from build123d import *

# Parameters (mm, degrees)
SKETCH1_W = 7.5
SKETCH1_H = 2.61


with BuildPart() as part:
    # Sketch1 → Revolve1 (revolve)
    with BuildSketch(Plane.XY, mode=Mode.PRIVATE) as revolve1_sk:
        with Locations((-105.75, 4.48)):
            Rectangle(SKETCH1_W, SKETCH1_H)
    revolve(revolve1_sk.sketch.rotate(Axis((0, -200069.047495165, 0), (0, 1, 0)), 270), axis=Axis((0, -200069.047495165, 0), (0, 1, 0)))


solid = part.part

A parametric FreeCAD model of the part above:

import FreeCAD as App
import Part
import Sketcher

V = App.Vector

doc = App.newDocument("Part")
params = doc.addObject("Spreadsheet::Sheet", "Params")
for row, (alias, value) in enumerate([
    ("sketch1_width", "7.5 mm"),
    ("sketch1_height", "2.61 mm"),
    ("revolution_angle", "360 deg"),
], start=1):
    params.set(f"A{row}", alias)
    params.set(f"B{row}", "=" + value)
    params.setAlias(f"B{row}", alias)

body = doc.addObject("PartDesign::Body", "Body")

# Sketch on XY plane
sketch1 = body.newObject("Sketcher::SketchObject", "Sketch")
sketch1.AttachmentSupport = (doc.getObject("XY_Plane"), [""])
sketch1.MapMode = "FlatFace"
sketch1.addGeometry(Part.LineSegment(V(-109.5, 5.8, 0), V(-109.5, 3.2, 0)), False)
sketch1.addGeometry(Part.LineSegment(V(-109.5, 3.2, 0), V(-102, 3.2, 0)), False)
sketch1.addGeometry(Part.LineSegment(V(-102, 3.2, 0), V(-102, 5.8, 0)), False)
sketch1.addGeometry(Part.LineSegment(V(-102, 5.8, 0), V(-109.5, 5.8, 0)), False)
sketch1.addConstraint(Sketcher.Constraint("Coincident", 0, 2, 1, 1))
sketch1.addConstraint(Sketcher.Constraint("Coincident", 1, 2, 2, 1))
sketch1.addConstraint(Sketcher.Constraint("Coincident", 2, 2, 3, 1))
sketch1.addConstraint(Sketcher.Constraint("Coincident", 3, 2, 0, 1))
sketch1.addConstraint(Sketcher.Constraint("Vertical", 0))
sketch1.addConstraint(Sketcher.Constraint("Horizontal", 1))
sketch1.addConstraint(Sketcher.Constraint("Vertical", 2))
sketch1.addConstraint(Sketcher.Constraint("Horizontal", 3))
sketch1.addConstraint(Sketcher.Constraint("DistanceX", 1, 1, 1, 2, 7.5))
sketch1.addConstraint(Sketcher.Constraint("DistanceX", 1, 2, -1, 1, 102.0))
sketch1.addConstraint(Sketcher.Constraint("DistanceY", 0, 2, 0, 1, 2.61))
sketch1.addConstraint(Sketcher.Constraint("DistanceY", -1, 1, 0, 2, 3.175))
sketch1.setExpression("Constraints[8]", "Params.sketch1_width")
sketch1.setExpression("Constraints[10]", "Params.sketch1_height")
revolution = body.newObject("PartDesign::Revolution", "Revolution")
revolution.Profile = sketch1
revolution.ReferenceAxis = (sketch1, ["V_Axis"])
revolution.setExpression("Angle", "Params.revolution_angle")

doc.recompute()
